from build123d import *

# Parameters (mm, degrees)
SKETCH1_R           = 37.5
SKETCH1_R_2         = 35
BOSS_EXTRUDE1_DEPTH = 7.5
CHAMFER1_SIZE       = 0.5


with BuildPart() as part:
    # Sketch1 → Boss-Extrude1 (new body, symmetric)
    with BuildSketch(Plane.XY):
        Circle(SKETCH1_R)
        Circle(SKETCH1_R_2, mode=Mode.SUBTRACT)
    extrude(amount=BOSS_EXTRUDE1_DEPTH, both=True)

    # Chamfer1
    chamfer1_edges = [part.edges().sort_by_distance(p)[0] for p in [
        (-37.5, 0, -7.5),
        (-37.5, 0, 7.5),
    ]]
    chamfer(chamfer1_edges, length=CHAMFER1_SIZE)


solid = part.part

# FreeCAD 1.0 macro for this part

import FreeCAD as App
import Part
import Sketcher

V = App.Vector


def edges_at(feature, points):
    """Names of the edges that pass closest to the given points."""
    edges = feature.Shape.Edges
    near = lambda p: min(range(len(edges)), key=lambda i: edges[i].distToShape(Part.Vertex(*p))[0])
    return sorted({f"Edge{near(p) + 1}" for p in points})

doc = App.newDocument("Part")
body = doc.addObject("PartDesign::Body", "Body")

# Sketch on XY plane
sketch1 = doc.addObject("Sketcher::SketchObject", "Sketch")
body.addObject(sketch1)
sketch1.AttachmentSupport = (doc.XY_Plane, [""])
sketch1.MapMode = "FlatFace"
sketch1.addGeometry(Part.Circle(V(0, 0, 0), V(0, 0, 1), 37.5), False)
sketch1.addGeometry(Part.Circle(V(0, 0, 0), V(0, 0, 1), 35), False)
sketch1.addConstraint(Sketcher.Constraint("Coincident", 0, 3, -1, 1))
sketch1.addConstraint(Sketcher.Constraint("Coincident", 1, 3, -1, 1))
sketch1.addConstraint(Sketcher.Constraint("Diameter", 0, 75.0))
sketch1.addConstraint(Sketcher.Constraint("Diameter", 1, 70.0))
pad1 = doc.addObject("PartDesign::Pad", "Pad")
body.addObject(pad1)
pad1.Profile = sketch1
pad1.Length = 15
pad1.Midplane = True
doc.recompute()

chamfer = doc.addObject("PartDesign::Chamfer", "Chamfer")
body.addObject(chamfer)
chamfer.Base = (pad1, edges_at(pad1, [(-37.5, 0, -7.5), (-37.5, 0, 7.5)]))
chamfer.Size = 0.5

doc.recompute()
